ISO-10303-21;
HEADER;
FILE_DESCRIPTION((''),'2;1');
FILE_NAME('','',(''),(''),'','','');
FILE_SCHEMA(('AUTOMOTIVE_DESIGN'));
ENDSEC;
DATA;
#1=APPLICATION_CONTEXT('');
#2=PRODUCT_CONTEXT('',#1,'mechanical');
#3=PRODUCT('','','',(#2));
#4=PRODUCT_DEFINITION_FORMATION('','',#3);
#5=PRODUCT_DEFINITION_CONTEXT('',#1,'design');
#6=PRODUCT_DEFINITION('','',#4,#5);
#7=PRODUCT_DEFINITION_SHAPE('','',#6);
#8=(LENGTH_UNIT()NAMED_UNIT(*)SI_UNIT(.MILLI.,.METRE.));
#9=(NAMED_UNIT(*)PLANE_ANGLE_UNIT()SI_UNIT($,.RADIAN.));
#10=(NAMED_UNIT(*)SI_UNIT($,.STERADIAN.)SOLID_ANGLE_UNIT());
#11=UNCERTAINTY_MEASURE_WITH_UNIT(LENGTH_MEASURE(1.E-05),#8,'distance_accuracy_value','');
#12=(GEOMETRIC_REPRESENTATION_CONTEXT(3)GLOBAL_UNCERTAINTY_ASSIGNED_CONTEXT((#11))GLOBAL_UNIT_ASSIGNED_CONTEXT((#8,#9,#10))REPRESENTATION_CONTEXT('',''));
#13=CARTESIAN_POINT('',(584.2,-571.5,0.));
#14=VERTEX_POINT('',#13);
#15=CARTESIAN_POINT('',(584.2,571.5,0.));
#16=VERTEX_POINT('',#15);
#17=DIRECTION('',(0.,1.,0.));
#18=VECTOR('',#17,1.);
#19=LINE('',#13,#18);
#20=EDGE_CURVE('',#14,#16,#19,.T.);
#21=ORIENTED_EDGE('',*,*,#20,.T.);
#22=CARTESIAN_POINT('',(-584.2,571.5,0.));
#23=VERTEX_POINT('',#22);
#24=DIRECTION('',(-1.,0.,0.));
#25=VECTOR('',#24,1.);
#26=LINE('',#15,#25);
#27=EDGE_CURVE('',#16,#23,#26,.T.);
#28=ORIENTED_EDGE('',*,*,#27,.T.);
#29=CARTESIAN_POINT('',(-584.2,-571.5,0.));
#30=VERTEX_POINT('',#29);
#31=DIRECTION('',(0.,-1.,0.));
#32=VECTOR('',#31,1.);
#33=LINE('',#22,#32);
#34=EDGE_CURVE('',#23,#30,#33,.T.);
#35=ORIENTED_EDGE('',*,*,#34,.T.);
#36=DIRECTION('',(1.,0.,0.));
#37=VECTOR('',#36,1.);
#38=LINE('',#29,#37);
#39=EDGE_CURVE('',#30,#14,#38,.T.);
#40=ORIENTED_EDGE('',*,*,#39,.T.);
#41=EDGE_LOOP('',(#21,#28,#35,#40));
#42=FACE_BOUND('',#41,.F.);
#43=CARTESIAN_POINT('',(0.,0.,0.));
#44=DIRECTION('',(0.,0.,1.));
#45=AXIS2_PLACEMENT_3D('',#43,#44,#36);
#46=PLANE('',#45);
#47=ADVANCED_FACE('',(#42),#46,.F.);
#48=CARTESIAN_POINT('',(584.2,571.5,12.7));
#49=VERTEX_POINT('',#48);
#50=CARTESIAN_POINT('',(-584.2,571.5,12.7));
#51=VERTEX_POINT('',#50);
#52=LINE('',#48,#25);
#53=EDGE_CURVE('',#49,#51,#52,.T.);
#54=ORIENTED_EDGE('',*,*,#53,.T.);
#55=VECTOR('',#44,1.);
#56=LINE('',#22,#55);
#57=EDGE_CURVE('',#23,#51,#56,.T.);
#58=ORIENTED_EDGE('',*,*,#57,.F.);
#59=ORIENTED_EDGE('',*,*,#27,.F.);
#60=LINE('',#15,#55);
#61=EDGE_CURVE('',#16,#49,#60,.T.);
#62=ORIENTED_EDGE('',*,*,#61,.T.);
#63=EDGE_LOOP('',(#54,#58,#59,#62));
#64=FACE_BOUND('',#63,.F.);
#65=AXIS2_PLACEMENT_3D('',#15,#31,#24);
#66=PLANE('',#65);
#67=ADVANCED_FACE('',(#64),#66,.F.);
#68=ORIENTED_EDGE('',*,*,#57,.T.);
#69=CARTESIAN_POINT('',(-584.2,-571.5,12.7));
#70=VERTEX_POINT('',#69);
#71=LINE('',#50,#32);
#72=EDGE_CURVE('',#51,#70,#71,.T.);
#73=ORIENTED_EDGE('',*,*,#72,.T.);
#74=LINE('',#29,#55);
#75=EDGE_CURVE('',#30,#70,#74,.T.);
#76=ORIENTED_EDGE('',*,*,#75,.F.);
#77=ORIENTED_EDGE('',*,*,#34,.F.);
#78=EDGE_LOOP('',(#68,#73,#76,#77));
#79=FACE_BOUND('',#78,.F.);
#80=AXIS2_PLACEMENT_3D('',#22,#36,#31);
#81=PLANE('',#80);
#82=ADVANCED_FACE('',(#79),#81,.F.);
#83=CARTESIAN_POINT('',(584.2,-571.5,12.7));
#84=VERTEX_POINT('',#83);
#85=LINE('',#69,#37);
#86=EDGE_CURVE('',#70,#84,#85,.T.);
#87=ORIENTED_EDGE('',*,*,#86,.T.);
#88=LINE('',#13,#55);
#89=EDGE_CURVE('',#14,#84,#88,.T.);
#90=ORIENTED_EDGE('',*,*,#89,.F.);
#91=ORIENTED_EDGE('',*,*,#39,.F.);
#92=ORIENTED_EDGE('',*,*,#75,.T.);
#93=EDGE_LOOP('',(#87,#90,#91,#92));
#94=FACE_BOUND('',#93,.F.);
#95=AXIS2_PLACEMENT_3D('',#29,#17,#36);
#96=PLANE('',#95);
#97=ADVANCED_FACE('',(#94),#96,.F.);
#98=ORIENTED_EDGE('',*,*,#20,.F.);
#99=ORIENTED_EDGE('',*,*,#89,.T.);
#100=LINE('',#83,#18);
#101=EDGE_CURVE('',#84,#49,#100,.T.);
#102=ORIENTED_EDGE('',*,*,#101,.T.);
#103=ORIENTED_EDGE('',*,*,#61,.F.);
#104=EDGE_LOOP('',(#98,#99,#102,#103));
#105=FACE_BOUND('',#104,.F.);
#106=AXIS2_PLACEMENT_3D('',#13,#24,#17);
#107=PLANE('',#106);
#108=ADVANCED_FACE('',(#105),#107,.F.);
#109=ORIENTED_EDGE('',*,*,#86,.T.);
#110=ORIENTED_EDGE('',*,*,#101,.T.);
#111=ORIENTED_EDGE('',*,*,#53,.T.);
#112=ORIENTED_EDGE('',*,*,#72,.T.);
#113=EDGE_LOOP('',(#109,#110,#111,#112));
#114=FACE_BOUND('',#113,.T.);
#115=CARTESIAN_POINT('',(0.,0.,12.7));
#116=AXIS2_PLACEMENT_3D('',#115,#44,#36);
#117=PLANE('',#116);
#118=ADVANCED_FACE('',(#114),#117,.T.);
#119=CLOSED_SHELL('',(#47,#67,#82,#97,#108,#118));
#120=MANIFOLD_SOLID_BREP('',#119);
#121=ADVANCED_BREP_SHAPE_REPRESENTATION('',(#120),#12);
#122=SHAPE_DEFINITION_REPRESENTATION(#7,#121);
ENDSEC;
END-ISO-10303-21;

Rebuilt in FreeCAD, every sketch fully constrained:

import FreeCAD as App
import Part
import Sketcher
from FreeCAD import Vector
Q = App.Units.Quantity


def add_polygon(sketch, points):
    """Adds a closed chain of lines whose ends are joined by coincident constraints."""
    first, n = sketch.GeometryCount, len(points)
    for a, b in zip(points, points[1:] + points[:1]):
        sketch.addGeometry(Part.LineSegment(App.Vector(*a, 0), App.Vector(*b, 0)), False)
    for i in range(n):
        sketch.addConstraint(Sketcher.Constraint("Coincident", first + i, 2, first + (i + 1) % n, 1))

doc = App.newDocument("Part")
body = doc.addObject("PartDesign::Body", "Body")

# Sketch on XY plane
sketch1 = body.newObject("Sketcher::SketchObject", "Sketch")
sketch1.AttachmentSupport = (doc.getObject("XY_Plane"), [""])
sketch1.MapMode = "FlatFace"
add_polygon(sketch1, [(-584, 572), (-584, -572), (584, -572), (584, 572)])  # lines 0-3
sketch1.addConstraint([
    Sketcher.Constraint("Vertical", 0),
    Sketcher.Constraint("Horizontal", 1),
    Sketcher.Constraint("Vertical", 2),
    Sketcher.Constraint("Horizontal", 3),
    Sketcher.Constraint("Symmetric", 0, 2, 2, 2, -1, 1),
    Sketcher.Constraint("DistanceX", 1, 1, 1, 2, Q("46 in")),
    Sketcher.Constraint("DistanceY", 0, 2, 0, 1, Q("45 in")),
])
pad1 = body.newObject("PartDesign::Pad", "Pad")
pad1.Profile = sketch1
pad1.Length = Q("0.5 in")

doc.recompute()
